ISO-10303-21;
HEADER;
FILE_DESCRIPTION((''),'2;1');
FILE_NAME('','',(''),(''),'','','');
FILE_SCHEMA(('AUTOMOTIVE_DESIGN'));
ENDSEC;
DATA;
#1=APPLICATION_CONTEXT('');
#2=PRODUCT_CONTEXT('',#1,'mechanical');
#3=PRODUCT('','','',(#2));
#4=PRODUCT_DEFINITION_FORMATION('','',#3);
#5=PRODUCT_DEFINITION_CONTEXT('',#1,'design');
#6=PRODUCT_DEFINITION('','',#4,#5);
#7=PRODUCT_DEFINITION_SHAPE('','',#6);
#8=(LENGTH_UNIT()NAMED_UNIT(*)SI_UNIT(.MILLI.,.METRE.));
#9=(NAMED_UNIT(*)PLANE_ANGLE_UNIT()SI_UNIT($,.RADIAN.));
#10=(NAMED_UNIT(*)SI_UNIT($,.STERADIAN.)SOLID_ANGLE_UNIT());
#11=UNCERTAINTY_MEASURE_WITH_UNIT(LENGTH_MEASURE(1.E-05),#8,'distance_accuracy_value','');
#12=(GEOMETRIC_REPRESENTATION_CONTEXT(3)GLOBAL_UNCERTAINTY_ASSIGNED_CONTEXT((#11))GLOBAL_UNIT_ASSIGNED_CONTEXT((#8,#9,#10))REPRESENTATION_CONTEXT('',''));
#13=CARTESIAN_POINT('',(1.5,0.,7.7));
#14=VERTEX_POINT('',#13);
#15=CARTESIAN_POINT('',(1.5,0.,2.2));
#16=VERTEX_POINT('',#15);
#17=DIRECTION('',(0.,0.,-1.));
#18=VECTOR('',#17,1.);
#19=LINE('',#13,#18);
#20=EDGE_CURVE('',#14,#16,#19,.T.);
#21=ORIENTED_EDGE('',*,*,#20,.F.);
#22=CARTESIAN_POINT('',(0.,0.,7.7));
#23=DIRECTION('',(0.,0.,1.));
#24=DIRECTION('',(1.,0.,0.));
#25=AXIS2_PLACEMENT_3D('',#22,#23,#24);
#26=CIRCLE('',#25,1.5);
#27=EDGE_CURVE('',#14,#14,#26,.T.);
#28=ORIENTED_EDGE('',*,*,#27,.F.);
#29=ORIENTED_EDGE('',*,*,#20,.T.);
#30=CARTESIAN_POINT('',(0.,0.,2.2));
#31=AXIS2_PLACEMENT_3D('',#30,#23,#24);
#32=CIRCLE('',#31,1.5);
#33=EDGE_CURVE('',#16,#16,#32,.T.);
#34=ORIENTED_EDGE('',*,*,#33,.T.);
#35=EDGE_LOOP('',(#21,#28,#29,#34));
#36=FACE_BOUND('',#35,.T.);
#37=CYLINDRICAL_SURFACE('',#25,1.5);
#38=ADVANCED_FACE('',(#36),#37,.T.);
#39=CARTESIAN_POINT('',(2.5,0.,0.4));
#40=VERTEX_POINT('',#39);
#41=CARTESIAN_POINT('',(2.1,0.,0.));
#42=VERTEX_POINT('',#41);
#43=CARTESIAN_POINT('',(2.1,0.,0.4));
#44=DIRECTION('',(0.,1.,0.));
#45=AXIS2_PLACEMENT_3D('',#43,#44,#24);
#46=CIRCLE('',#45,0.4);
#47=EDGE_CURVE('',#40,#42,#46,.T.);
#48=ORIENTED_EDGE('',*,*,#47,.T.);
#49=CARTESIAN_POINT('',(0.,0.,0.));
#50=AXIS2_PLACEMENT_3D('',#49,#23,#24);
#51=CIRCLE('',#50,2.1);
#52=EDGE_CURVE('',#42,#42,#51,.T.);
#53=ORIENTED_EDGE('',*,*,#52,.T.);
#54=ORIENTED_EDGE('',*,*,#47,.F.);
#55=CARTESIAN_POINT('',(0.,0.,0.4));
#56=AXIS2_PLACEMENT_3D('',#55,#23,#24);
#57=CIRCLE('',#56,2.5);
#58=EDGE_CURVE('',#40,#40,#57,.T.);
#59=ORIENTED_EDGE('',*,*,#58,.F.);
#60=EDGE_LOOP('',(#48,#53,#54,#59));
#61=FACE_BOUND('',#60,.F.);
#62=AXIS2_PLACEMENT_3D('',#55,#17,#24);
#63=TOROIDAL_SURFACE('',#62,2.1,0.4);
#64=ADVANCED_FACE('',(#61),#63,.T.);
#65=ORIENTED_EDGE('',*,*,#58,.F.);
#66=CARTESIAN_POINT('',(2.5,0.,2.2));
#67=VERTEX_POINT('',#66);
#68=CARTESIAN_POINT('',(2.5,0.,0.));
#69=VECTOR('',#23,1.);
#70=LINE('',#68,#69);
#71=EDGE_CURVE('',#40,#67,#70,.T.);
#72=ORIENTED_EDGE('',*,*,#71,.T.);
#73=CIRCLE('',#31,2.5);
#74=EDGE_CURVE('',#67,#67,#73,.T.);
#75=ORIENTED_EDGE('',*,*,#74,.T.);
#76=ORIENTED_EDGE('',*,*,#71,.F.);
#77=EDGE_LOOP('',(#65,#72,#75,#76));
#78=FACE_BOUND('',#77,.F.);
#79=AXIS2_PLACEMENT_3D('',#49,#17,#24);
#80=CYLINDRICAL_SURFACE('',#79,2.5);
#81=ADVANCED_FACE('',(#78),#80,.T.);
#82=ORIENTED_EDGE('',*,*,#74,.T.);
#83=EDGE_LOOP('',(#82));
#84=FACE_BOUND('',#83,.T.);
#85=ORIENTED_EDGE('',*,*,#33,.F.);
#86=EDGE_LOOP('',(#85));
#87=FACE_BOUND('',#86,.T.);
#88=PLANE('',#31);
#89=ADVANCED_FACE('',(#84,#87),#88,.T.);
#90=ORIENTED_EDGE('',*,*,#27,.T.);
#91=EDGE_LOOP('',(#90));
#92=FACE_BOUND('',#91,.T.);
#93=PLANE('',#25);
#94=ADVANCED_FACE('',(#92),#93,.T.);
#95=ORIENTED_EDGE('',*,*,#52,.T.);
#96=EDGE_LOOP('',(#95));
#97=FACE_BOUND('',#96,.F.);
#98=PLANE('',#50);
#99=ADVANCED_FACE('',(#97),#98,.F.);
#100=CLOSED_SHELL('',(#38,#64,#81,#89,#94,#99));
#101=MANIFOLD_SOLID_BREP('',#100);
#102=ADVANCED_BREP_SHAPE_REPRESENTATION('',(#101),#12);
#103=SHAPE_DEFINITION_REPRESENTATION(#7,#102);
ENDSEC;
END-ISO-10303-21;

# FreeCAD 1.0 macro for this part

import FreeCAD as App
import Part
import Sketcher


def edges_at(feature, points):
    """Names of the edges that pass closest to the given points."""
    edges = feature.Shape.Edges
    near = lambda p: min(range(len(edges)), key=lambda i: edges[i].distToShape(Part.Vertex(*p))[0])
    return sorted({f"Edge{near(p) + 1}" for p in points})

doc = App.newDocument("Part")
body = doc.addObject("PartDesign::Body", "Body")

# Sketch on XY plane
sketch1 = doc.addObject("Sketcher::SketchObject", "Sketch")
body.addObject(sketch1)
sketch1.AttachmentSupport = (doc.XY_Plane, [""])
sketch1.MapMode = "FlatFace"
sketch1.addGeometry(Part.Circle(App.Vector(0, 0, 0), App.Vector(0, 0, 1), 2.5), False)
sketch1.addConstraint([
    Sketcher.Constraint("Coincident", 0, 3, -1, 1),
    Sketcher.Constraint("Diameter", 0, 5.0),
])
pad1 = doc.addObject("PartDesign::Pad", "Pad")
body.addObject(pad1)
pad1.Profile = sketch1
pad1.Length = 7.7

# Sketch on XY plane
sketch2 = doc.addObject("Sketcher::SketchObject", "Sketch001")
body.addObject(sketch2)
sketch2.AttachmentSupport = (doc.XY_Plane, [""])
sketch2.MapMode = "FlatFace"
sketch2.AttachmentOffset = App.Placement(App.Vector(0, 0, 7.7), App.Rotation())
sketch2.addGeometry([
    Part.Circle(App.Vector(0, 0, 0), App.Vector(0, 0, 1), 2.5),
    Part.Circle(App.Vector(0, 0, 0), App.Vector(0, 0, 1), 1.5),
], False)
sketch2.addConstraint([
    Sketcher.Constraint("Coincident", 0, 3, -1, 1),
    Sketcher.Constraint("Coincident", 1, 3, -1, 1),
    Sketcher.Constraint("Diameter", 1, 3.0),
    Sketcher.Constraint("Diameter", 0, 5.0),
])
pocket1 = doc.addObject("PartDesign::Pocket", "Pocket")
body.addObject(pocket1)
pocket1.Profile = sketch2
pocket1.Length = 5.5
doc.recompute()

fillet = doc.addObject("PartDesign::Fillet", "Fillet")
body.addObject(fillet)
fillet.Base = (pocket1, edges_at(pocket1, [(-2.5, 0, 0)]))
fillet.Radius = 0.4

doc.recompute()
